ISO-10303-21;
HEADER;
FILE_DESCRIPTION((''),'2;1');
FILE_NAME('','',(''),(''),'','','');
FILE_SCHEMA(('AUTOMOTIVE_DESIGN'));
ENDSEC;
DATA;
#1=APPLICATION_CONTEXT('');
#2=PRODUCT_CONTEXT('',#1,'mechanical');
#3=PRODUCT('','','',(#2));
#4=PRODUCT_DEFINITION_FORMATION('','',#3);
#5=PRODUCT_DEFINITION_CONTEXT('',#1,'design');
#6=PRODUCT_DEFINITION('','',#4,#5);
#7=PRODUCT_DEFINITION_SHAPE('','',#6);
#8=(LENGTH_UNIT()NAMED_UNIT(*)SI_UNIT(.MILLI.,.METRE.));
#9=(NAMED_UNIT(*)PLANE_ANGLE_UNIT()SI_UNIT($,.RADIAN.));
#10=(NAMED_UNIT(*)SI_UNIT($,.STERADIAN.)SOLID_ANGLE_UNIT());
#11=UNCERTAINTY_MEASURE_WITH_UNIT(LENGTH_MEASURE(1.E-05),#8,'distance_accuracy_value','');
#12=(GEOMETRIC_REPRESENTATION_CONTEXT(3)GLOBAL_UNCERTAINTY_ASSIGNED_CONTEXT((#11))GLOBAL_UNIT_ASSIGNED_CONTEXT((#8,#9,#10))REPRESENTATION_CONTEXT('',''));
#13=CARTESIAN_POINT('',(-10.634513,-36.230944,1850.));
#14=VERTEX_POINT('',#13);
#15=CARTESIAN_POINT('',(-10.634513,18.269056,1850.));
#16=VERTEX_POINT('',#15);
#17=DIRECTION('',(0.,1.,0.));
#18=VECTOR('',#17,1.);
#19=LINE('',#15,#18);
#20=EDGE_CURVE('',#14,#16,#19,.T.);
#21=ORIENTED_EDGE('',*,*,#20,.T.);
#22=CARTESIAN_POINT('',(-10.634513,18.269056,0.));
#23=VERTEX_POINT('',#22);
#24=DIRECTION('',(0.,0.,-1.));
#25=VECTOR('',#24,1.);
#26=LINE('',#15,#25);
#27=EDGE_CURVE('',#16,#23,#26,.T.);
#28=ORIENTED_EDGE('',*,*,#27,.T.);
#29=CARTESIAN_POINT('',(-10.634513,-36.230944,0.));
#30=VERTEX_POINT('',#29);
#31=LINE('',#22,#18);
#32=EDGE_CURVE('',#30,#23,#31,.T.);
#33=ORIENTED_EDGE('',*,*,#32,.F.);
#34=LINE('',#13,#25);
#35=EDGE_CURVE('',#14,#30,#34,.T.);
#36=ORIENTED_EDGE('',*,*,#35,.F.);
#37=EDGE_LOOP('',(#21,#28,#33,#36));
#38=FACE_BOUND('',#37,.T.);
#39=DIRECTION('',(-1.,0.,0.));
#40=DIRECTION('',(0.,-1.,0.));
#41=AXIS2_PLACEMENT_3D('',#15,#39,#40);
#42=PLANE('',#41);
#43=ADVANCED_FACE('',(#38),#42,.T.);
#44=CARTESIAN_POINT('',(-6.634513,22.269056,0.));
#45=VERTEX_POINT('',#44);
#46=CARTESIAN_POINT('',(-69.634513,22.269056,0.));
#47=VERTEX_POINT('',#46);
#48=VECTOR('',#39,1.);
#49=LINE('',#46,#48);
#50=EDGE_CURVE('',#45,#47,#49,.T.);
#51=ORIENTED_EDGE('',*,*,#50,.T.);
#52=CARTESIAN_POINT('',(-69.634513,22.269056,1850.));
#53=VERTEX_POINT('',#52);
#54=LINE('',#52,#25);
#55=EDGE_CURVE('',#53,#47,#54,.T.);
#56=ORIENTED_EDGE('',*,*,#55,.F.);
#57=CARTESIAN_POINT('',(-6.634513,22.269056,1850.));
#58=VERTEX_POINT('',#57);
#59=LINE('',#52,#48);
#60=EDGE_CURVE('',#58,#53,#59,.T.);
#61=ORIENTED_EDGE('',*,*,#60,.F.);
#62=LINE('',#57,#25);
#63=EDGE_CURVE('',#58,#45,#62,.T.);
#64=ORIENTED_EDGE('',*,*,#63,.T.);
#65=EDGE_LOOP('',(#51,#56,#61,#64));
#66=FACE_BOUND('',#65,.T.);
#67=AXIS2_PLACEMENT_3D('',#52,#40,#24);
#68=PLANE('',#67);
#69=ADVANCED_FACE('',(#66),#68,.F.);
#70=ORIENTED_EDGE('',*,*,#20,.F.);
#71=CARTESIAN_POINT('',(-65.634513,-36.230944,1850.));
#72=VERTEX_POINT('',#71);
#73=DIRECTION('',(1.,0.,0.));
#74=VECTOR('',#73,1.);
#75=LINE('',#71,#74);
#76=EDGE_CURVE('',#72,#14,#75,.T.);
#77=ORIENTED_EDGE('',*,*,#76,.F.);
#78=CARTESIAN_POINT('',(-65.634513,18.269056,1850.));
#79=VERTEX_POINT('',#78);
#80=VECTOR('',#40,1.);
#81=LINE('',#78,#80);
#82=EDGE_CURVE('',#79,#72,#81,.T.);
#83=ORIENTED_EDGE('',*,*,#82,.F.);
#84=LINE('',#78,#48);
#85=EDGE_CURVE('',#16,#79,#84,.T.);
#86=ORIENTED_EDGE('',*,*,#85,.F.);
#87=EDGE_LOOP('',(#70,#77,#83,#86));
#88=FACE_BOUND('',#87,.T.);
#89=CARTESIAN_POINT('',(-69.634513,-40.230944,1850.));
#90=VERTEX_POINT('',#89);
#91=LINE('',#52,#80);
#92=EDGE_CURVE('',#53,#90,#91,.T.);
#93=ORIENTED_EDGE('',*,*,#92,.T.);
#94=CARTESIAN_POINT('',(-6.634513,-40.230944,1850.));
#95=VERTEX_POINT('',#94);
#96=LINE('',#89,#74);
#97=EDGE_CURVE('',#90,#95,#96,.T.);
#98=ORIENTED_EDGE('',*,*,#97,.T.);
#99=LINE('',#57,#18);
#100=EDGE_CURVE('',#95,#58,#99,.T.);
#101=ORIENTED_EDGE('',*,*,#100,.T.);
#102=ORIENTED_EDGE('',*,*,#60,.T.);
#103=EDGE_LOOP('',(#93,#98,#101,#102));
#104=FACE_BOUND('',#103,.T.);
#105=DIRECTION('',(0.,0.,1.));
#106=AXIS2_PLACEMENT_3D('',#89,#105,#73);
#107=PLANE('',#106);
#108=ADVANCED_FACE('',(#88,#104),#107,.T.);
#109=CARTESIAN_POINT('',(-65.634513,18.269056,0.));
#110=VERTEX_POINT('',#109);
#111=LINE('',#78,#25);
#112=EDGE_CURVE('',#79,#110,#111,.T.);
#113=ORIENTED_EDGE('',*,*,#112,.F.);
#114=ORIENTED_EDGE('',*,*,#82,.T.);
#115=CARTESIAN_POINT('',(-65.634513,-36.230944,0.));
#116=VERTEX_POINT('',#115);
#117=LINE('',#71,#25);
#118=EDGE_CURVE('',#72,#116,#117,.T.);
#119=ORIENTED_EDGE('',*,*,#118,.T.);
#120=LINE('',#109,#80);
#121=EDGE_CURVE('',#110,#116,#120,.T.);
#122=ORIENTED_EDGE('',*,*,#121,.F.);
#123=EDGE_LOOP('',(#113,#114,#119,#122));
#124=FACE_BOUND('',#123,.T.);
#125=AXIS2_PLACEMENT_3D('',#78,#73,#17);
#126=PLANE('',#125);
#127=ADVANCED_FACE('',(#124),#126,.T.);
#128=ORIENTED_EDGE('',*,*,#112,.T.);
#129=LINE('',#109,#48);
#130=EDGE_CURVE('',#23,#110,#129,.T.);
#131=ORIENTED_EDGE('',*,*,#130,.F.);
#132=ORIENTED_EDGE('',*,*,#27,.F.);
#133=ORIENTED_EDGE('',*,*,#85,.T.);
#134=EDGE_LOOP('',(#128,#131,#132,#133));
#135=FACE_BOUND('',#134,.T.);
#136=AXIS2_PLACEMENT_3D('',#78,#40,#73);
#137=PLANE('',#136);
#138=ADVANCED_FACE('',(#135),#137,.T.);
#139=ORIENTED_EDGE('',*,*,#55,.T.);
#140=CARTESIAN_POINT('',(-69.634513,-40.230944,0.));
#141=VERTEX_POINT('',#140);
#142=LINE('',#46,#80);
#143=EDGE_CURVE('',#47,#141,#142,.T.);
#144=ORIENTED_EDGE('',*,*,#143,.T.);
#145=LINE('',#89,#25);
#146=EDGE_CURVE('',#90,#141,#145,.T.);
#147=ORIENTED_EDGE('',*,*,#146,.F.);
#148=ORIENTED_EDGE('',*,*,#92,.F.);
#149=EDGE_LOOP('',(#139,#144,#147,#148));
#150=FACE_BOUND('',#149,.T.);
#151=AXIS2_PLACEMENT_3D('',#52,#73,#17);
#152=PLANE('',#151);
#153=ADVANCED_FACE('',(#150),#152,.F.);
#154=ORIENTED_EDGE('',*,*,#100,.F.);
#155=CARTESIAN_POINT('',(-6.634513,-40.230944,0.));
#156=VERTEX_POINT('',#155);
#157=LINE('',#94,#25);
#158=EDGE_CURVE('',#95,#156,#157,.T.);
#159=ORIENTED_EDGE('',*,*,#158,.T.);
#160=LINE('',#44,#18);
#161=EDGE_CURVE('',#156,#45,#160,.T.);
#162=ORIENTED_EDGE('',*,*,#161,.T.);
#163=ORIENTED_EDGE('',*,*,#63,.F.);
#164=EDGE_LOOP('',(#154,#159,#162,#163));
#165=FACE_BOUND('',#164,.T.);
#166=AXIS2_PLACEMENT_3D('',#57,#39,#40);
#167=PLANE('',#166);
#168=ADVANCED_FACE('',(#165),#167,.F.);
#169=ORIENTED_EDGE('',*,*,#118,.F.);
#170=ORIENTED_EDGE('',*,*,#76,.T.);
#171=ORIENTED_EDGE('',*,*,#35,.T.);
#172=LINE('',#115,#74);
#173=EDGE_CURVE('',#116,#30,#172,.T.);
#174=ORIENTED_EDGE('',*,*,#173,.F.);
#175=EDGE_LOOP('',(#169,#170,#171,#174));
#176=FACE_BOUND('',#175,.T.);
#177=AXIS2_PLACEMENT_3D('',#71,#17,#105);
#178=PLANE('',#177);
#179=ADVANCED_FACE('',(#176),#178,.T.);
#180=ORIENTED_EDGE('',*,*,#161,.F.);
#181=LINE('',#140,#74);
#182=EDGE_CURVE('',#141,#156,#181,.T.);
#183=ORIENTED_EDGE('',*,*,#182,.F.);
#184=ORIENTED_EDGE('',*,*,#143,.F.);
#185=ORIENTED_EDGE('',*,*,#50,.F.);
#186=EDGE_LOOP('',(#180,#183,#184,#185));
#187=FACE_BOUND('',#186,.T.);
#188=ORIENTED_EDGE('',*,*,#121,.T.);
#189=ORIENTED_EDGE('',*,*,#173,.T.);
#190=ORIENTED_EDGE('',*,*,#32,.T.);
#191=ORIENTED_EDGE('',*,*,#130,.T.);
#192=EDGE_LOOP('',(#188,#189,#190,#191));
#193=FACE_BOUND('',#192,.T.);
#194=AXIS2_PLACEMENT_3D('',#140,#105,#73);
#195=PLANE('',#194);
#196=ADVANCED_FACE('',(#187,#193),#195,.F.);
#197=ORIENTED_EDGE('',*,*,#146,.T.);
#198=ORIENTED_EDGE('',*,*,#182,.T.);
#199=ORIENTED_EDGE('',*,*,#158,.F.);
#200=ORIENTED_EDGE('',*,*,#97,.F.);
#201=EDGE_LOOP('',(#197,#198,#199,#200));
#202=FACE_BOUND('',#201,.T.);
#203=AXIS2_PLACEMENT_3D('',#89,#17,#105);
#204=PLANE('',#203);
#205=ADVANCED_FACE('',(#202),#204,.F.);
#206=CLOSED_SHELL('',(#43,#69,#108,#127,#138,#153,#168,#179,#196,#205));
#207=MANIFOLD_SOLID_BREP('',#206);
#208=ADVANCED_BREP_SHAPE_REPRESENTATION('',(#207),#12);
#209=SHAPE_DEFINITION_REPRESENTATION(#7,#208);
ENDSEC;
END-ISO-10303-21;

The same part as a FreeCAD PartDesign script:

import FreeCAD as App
import Part
import Sketcher
from FreeCAD import Vector

doc = App.newDocument("Part")
body = doc.addObject("PartDesign::Body", "Body")

# Sketch on XY plane
sketch1 = body.newObject("Sketcher::SketchObject", "Sketch")
sketch1.AttachmentSupport = (doc.getObject("XY_Plane"), [""])
sketch1.MapMode = "FlatFace"
sketch1.addGeometry([
    Part.LineSegment(Vector(-69.634513, 22.269056, 0), Vector(-69.634513, -40.230944, 0)),  # 0
    Part.LineSegment(Vector(-69.634513, -40.230944, 0), Vector(-6.634513, -40.230944, 0)),  # 1
    Part.LineSegment(Vector(-6.634513, -40.230944, 0), Vector(-6.634513, 22.269056, 0)),  # 2
    Part.LineSegment(Vector(-6.634513, 22.269056, 0), Vector(-69.634513, 22.269056, 0)),  # 3
    Part.LineSegment(Vector(-10.634513, -36.230944, 0), Vector(-65.634513, -36.230944, 0)),  # 4
    Part.LineSegment(Vector(-65.634513, -36.230944, 0), Vector(-65.634513, 18.269056, 0)),  # 5
    Part.LineSegment(Vector(-65.634513, 18.269056, 0), Vector(-10.634513, 18.269056, 0)),  # 6
    Part.LineSegment(Vector(-10.634513, 18.269056, 0), Vector(-10.634513, -36.230944, 0)),  # 7
], False)
sketch1.addConstraint([
    Sketcher.Constraint("Coincident", 0, 2, 1, 1),
    Sketcher.Constraint("Coincident", 1, 2, 2, 1),
    Sketcher.Constraint("Coincident", 2, 2, 3, 1),
    Sketcher.Constraint("Coincident", 3, 2, 0, 1),
    Sketcher.Constraint("Coincident", 4, 2, 5, 1),
    Sketcher.Constraint("Coincident", 5, 2, 6, 1),
    Sketcher.Constraint("Coincident", 6, 2, 7, 1),
    Sketcher.Constraint("Coincident", 7, 2, 4, 1),
    Sketcher.Constraint("Vertical", 0),
    Sketcher.Constraint("Horizontal", 1),
    Sketcher.Constraint("Vertical", 2),
    Sketcher.Constraint("Horizontal", 3),
    Sketcher.Constraint("Horizontal", 4),
    Sketcher.Constraint("Vertical", 5),
    Sketcher.Constraint("Horizontal", 6),
    Sketcher.Constraint("Vertical", 7),
    Sketcher.Constraint("DistanceX", 1, 1, 1, 2, 63.0),
    Sketcher.Constraint("DistanceX", 4, 2, 4, 1, 55.0),
    Sketcher.Constraint("DistanceY", 0, 2, 0, 1, 62.5),
    Sketcher.Constraint("DistanceY", 5, 1, 5, 2, 54.5),
    Sketcher.Constraint("DistanceX", 0, 2, 4, 2, 4.0),
    Sketcher.Constraint("DistanceY", 0, 2, 4, 2, 4.0),
    Sketcher.Constraint("DistanceX", 0, 2, -1, 1, 69.634513),
    Sketcher.Constraint("DistanceY", 0, 2, -1, 1, 40.230944),
])
pad1 = body.newObject("PartDesign::Pad", "Pad")
pad1.Profile = sketch1
pad1.Length = 1850

doc.recompute()
